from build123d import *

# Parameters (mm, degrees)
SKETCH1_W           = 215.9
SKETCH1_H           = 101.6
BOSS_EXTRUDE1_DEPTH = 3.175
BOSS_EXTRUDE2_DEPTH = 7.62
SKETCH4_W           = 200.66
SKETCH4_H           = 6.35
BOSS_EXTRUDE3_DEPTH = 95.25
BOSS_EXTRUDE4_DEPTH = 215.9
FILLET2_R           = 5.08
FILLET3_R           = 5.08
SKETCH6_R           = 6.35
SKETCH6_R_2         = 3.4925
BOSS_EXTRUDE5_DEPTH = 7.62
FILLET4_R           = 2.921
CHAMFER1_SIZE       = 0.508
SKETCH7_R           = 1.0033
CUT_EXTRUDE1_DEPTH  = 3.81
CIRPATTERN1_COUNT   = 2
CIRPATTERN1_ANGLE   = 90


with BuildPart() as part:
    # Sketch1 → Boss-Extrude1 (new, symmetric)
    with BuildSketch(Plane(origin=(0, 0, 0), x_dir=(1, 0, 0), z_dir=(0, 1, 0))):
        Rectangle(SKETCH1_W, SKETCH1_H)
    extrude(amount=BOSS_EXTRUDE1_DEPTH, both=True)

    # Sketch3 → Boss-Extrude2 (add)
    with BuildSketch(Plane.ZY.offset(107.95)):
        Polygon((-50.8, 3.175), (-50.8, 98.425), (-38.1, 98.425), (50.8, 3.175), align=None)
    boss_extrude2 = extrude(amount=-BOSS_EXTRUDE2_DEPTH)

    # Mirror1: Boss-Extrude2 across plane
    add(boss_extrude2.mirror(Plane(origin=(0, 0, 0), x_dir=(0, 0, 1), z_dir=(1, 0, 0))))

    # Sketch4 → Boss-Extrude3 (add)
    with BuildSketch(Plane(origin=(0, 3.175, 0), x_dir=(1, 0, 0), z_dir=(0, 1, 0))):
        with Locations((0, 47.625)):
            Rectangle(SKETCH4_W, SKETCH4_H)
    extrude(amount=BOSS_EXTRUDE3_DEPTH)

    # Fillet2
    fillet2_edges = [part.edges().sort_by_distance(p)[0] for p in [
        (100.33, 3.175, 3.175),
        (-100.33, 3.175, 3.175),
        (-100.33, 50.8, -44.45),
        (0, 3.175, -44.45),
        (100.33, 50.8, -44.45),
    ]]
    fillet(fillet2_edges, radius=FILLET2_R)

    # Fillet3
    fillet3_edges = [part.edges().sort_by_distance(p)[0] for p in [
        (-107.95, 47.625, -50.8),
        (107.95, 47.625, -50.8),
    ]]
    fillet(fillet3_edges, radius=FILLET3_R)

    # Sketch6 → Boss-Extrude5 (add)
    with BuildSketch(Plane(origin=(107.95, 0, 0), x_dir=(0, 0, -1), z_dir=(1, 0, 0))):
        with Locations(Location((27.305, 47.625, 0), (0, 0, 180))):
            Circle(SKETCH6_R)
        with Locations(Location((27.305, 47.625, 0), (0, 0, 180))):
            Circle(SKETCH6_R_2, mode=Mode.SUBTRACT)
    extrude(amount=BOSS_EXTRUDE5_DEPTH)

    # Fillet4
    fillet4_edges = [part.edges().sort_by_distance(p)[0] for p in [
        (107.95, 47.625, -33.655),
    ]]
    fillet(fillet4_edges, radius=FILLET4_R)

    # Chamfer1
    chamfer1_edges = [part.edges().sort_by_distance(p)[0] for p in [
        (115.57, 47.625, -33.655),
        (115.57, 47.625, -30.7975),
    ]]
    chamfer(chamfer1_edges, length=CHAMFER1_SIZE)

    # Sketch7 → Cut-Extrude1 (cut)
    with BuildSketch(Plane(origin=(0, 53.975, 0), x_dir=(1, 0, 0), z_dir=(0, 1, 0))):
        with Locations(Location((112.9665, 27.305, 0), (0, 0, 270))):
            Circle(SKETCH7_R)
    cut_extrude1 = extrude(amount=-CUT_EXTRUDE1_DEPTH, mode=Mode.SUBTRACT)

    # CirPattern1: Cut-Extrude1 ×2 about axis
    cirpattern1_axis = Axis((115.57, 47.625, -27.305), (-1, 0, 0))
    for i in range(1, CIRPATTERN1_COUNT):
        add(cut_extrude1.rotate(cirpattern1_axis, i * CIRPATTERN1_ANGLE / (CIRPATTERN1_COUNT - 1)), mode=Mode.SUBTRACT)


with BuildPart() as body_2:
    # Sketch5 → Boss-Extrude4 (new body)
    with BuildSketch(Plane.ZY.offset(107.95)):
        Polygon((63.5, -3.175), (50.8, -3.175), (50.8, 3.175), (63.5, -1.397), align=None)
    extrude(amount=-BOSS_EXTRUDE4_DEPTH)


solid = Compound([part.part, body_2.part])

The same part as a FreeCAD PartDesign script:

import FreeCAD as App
import Part
import Sketcher
Q = App.Units.Quantity


def edges_at(feature, points):
    """Names of the edges that pass closest to the given points."""
    edges = feature.Shape.Edges
    near = lambda p: min(range(len(edges)), key=lambda i: edges[i].distToShape(Part.Vertex(*p))[0])
    return sorted({f"Edge{near(p) + 1}" for p in points})

doc = App.newDocument("Part")
body = doc.addObject("PartDesign::Body", "Body")

sketch1 = body.newObject("Sketcher::SketchObject", "Sketch")
sketch1.AttachmentSupport = (doc.getObject("XZ_Plane"), [""])
sketch1.MapMode = "FlatFace"
sketch1.addGeometry([
    Part.LineSegment(App.Vector(-107.95, -50.8, 0), App.Vector(-107.95, 50.8, 0)),
    Part.LineSegment(App.Vector(-107.95, 50.8, 0), App.Vector(107.95, 50.8, 0)),
    Part.LineSegment(App.Vector(107.95, 50.8, 0), App.Vector(107.95, -50.8, 0)),
    Part.LineSegment(App.Vector(107.95, -50.8, 0), App.Vector(-107.95, -50.8, 0)),
], False)
sketch1.addConstraint([
    Sketcher.Constraint("Coincident", 0, 2, 1, 1),
    Sketcher.Constraint("Coincident", 1, 2, 2, 1),
    Sketcher.Constraint("Coincident", 2, 2, 3, 1),
    Sketcher.Constraint("Coincident", 3, 2, 0, 1),
    Sketcher.Constraint("Vertical", 0),
    Sketcher.Constraint("Horizontal", 1),
    Sketcher.Constraint("Vertical", 2),
    Sketcher.Constraint("Horizontal", 3),
    Sketcher.Constraint("Symmetric", 0, 2, 2, 2, -1, 1),
    Sketcher.Constraint("DistanceY", 0, 1, 0, 2, Q("4 in")),
    Sketcher.Constraint("DistanceX", 1, 1, 1, 2, Q("8.5 in")),
])
pad1 = body.newObject("PartDesign::Pad", "Pad")
pad1.Profile = sketch1
pad1.Length = Q("0.25 in")
pad1.Midplane = True

sketch2 = body.newObject("Sketcher::SketchObject", "Sketch001")
sketch2.AttachmentSupport = (doc.getObject("YZ_Plane"), [""])
sketch2.MapMode = "FlatFace"
sketch2.AttachmentOffset = App.Placement(App.Vector(0, 0, -4.25 * 25.4), App.Rotation())
sketch2.addGeometry([
    Part.LineSegment(App.Vector(98.425, -50.8, 0), App.Vector(3.175, -50.8, 0)),
    Part.LineSegment(App.Vector(3.175, -50.8, 0), App.Vector(3.175, 50.8, 0)),
    Part.LineSegment(App.Vector(3.175, 50.8, 0), App.Vector(98.425, -38.1, 0)),
    Part.LineSegment(App.Vector(98.425, -38.1, 0), App.Vector(98.425, -50.8, 0)),
], False)
sketch2.addConstraint([
    Sketcher.Constraint("Coincident", 0, 2, 1, 1),
    Sketcher.Constraint("Coincident", 1, 2, 2, 1),
    Sketcher.Constraint("Coincident", 2, 2, 3, 1),
    Sketcher.Constraint("Coincident", 3, 2, 0, 1),
    Sketcher.Constraint("Horizontal", 0),
    Sketcher.Constraint("Vertical", 1),
    Sketcher.Constraint("Vertical", 3),
    Sketcher.Constraint("DistanceY", 1, 1, 1, 2, Q("4 in")),
    Sketcher.Constraint("DistanceY", 3, 2, 3, 1, Q("0.5 in")),
    Sketcher.Constraint("DistanceY", 0, 2, -1, 1, Q("2 in")),
    Sketcher.Constraint("DistanceX", 0, 2, 0, 1, Q("3.75 in")),
    Sketcher.Constraint("DistanceX", -1, 1, 0, 2, Q("0.125 in")),
])
pad2 = body.newObject("PartDesign::Pad", "Pad001")
pad2.Profile = sketch2
pad2.Length = Q("0.3 in")
doc.recompute()

mirrored = body.newObject("PartDesign::Mirrored", "Mirrored")
mirrored.Originals = [pad2]
mirrored.MirrorPlane = (doc.getObject("YZ_Plane"), [""])
body.Tip = mirrored

sketch3 = body.newObject("Sketcher::SketchObject", "Sketch002")
sketch3.AttachmentSupport = (doc.getObject("XZ_Plane"), [""])
sketch3.MapMode = "FlatFace"
sketch3.AttachmentOffset = App.Placement(App.Vector(0, 0, -0.125 * 25.4), App.Rotation())
sketch3.addGeometry([
    Part.LineSegment(App.Vector(-100.33, -50.8, 0), App.Vector(-100.33, -44.45, 0)),
    Part.LineSegment(App.Vector(-100.33, -44.45, 0), App.Vector(100.33, -44.45, 0)),
    Part.LineSegment(App.Vector(100.33, -44.45, 0), App.Vector(100.33, -50.8, 0)),
    Part.LineSegment(App.Vector(100.33, -50.8, 0), App.Vector(-100.33, -50.8, 0)),
], False)
sketch3.addConstraint([
    Sketcher.Constraint("Coincident", 0, 2, 1, 1),
    Sketcher.Constraint("Coincident", 1, 2, 2, 1),
    Sketcher.Constraint("Coincident", 2, 2, 3, 1),
    Sketcher.Constraint("Coincident", 3, 2, 0, 1),
    Sketcher.Constraint("Vertical", 0),
    Sketcher.Constraint("Horizontal", 1),
    Sketcher.Constraint("Vertical", 2),
    Sketcher.Constraint("Horizontal", 3),
    Sketcher.Constraint("DistanceX", 1, 1, 1, 2, Q("7.9 in")),
    Sketcher.Constraint("DistanceY", 2, 2, -1, 1, Q("2 in")),
    Sketcher.Constraint("DistanceY", 0, 1, 0, 2, Q("0.25 in")),
    Sketcher.Constraint("DistanceX", 0, 2, -1, 1, Q("3.95 in")),
])
pad3 = body.newObject("PartDesign::Pad", "Pad002")
pad3.Profile = sketch3
pad3.Length = Q("3.75 in")
pad3.Reversed = True
doc.recompute()

fillet = body.newObject("PartDesign::Fillet", "Fillet")
fillet.Base = (pad3, edges_at(pad3, [
    (100.33, 3.175, 3.175),
    (-100.33, 3.175, 3.175),
    (-100.33, 50.8, -44.45),
    (0, 3.175, -44.45),
    (100.33, 50.8, -44.45),
]))
fillet.Radius = Q("0.2 in")
doc.recompute()

fillet2 = body.newObject("PartDesign::Fillet", "Fillet001")
fillet2.Base = (fillet, edges_at(fillet, [(-107.95, 47.625, -50.8), (107.95, 47.625, -50.8)]))
fillet2.Radius = Q("0.2 in")

sketch4 = body.newObject("Sketcher::SketchObject", "Sketch003")
sketch4.AttachmentSupport = (doc.getObject("YZ_Plane"), [""])
sketch4.MapMode = "FlatFace"
sketch4.AttachmentOffset = App.Placement(App.Vector(0, 0, 4.25 * 25.4), App.Rotation())
sketch4.addGeometry([
    Part.Circle(App.Vector(47.625, -27.305, 0), App.Vector(0, 0, 1), 6.35),
    Part.Circle(App.Vector(47.625, -27.305, 0), App.Vector(0, 0, 1), 3.4925),
], False)
sketch4.addConstraint([
    Sketcher.Constraint("Coincident", 1, 3, 0, 3),
    Sketcher.Constraint("Diameter", 0, Q("0.5 in")),
    Sketcher.Constraint("Diameter", 1, Q("0.275 in")),
    Sketcher.Constraint("DistanceX", -1, 1, 0, 3, Q("1.875 in")),
    Sketcher.Constraint("DistanceY", 0, 3, -1, 1, Q("1.075 in")),
])
pad4 = body.newObject("PartDesign::Pad", "Pad003")
pad4.Profile = sketch4
pad4.Length = Q("0.3 in")
doc.recompute()

fillet3 = body.newObject("PartDesign::Fillet", "Fillet002")
fillet3.Base = (pad4, edges_at(pad4, [(107.95, 47.625, -33.655)]))
fillet3.Radius = Q("0.115 in")
doc.recompute()

chamfer = body.newObject("PartDesign::Chamfer", "Chamfer")
chamfer.Base = (fillet3, edges_at(fillet3, [(115.57, 47.625, -33.655), (115.57, 47.625, -30.797)]))
chamfer.Size = Q("0.02 in")

sketch5 = body.newObject("Sketcher::SketchObject", "Sketch004")
sketch5.AttachmentSupport = (doc.getObject("XZ_Plane"), [""])
sketch5.MapMode = "FlatFace"
sketch5.AttachmentOffset = App.Placement(App.Vector(0, 0, -2.125 * 25.4), App.Rotation())
sketch5.addGeometry(Part.Circle(App.Vector(112.9665, -27.305, 0), App.Vector(0, 0, 1), 1.0033), False)
sketch5.addConstraint([
    Sketcher.Constraint("Diameter", 0, Q("0.079 in")),
    Sketcher.Constraint("DistanceY", 0, 3, -1, 1, Q("1.075 in")),
    Sketcher.Constraint("DistanceX", -1, 1, 0, 3, Q("4.4475 in")),
])
pocket1 = body.newObject("PartDesign::Pocket", "Pocket")
pocket1.Profile = sketch5
pocket1.Length = Q("0.15 in")
pocket1.Reversed = True
doc.recompute()

datumline = body.newObject("PartDesign::Line", "DatumLine")
datumline.Placement = App.Placement(App.Vector(0, 47.625, -27.305), App.Rotation(App.Vector(0, 0, 1), App.Vector(-1, 0, 0)))
polarpattern = body.newObject("PartDesign::PolarPattern", "PolarPattern")
polarpattern.Originals = [pocket1]
polarpattern.Axis = (datumline, [""])
polarpattern.Angle = 90
polarpattern.Occurrences = 2
body.Tip = polarpattern
body2 = doc.addObject("PartDesign::Body", "Body001")

sketch6 = body2.newObject("Sketcher::SketchObject", "Sketch005")
sketch6.AttachmentSupport = (doc.getObject("YZ_Plane001"), [""])
sketch6.MapMode = "FlatFace"
sketch6.AttachmentOffset = App.Placement(App.Vector(0, 0, -4.25 * 25.4), App.Rotation())
sketch6.addGeometry([
    Part.LineSegment(App.Vector(-3.175, 50.8, 0), App.Vector(-3.175, 63.5, 0)),
    Part.LineSegment(App.Vector(-3.175, 63.5, 0), App.Vector(-1.397, 63.5, 0)),
    Part.LineSegment(App.Vector(-1.397, 63.5, 0), App.Vector(3.175, 50.8, 0)),
    Part.LineSegment(App.Vector(3.175, 50.8, 0), App.Vector(-3.175, 50.8, 0)),
], False)
sketch6.addConstraint([
    Sketcher.Constraint("Coincident", 0, 2, 1, 1),
    Sketcher.Constraint("Coincident", 1, 2, 2, 1),
    Sketcher.Constraint("Coincident", 2, 2, 3, 1),
    Sketcher.Constraint("Coincident", 3, 2, 0, 1),
    Sketcher.Constraint("Vertical", 0),
    Sketcher.Constraint("Horizontal", 1),
    Sketcher.Constraint("Horizontal", 3),
    Sketcher.Constraint("DistanceY", 0, 1, 0, 2, Q("0.5 in")),
    Sketcher.Constraint("DistanceY", -1, 1, 2, 2, Q("2 in")),
    Sketcher.Constraint("DistanceX", 1, 1, 1, 2, Q("0.07 in")),
    Sketcher.Constraint("DistanceX", 3, 2, 3, 1, Q("0.25 in")),
    Sketcher.Constraint("DistanceX", 0, 2, -1, 1, Q("0.125 in")),
])
pad5 = body2.newObject("PartDesign::Pad", "Pad004")
pad5.Profile = sketch6
pad5.Length = Q("8.5 in")

doc.recompute()
